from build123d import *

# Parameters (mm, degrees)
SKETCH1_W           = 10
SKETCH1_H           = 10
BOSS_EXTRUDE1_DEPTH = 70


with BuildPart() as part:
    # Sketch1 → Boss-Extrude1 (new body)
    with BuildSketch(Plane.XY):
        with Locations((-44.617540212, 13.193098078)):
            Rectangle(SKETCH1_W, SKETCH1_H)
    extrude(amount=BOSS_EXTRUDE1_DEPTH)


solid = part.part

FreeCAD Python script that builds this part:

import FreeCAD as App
import Part
import Sketcher
Q = App.Units.Quantity


def add_polygon(sketch, points):
    """Adds a closed chain of lines whose ends are joined by coincident constraints."""
    first, n = sketch.GeometryCount, len(points)
    for a, b in zip(points, points[1:] + points[:1]):
        sketch.addGeometry(Part.LineSegment(App.Vector(*a, 0), App.Vector(*b, 0)), False)
    for i in range(n):
        sketch.addConstraint(Sketcher.Constraint("Coincident", first + i, 2, first + (i + 1) % n, 1))

doc = App.newDocument("Part")
body = doc.addObject("PartDesign::Body", "Body")

# Sketch on XY plane
sketch1 = body.newObject("Sketcher::SketchObject", "Sketch")
sketch1.AttachmentSupport = (doc.getObject("XY_Plane"), [""])
sketch1.MapMode = "FlatFace"
add_polygon(sketch1, [(-50, 18), (-50, 8), (-40, 8), (-40, 18)])  # lines 0-3
sketch1.addConstraint([
    Sketcher.Constraint("Vertical", 0),
    Sketcher.Constraint("Horizontal", 1),
    Sketcher.Constraint("Vertical", 2),
    Sketcher.Constraint("Horizontal", 3),
    Sketcher.Constraint("Equal", 3, 0),
    Sketcher.Constraint("DistanceX", 1, 1, 1, 2, Q("10 mm")),
    Sketcher.Constraint("DistanceY", -1, 1, 0, 2, Q("8.193098 mm")),
    Sketcher.Constraint("DistanceX", 0, 2, -1, 1, Q("49.61754 mm")),
])
pad1 = body.newObject("PartDesign::Pad", "Pad")
pad1.Profile = sketch1
pad1.Length = 70

doc.recompute()
